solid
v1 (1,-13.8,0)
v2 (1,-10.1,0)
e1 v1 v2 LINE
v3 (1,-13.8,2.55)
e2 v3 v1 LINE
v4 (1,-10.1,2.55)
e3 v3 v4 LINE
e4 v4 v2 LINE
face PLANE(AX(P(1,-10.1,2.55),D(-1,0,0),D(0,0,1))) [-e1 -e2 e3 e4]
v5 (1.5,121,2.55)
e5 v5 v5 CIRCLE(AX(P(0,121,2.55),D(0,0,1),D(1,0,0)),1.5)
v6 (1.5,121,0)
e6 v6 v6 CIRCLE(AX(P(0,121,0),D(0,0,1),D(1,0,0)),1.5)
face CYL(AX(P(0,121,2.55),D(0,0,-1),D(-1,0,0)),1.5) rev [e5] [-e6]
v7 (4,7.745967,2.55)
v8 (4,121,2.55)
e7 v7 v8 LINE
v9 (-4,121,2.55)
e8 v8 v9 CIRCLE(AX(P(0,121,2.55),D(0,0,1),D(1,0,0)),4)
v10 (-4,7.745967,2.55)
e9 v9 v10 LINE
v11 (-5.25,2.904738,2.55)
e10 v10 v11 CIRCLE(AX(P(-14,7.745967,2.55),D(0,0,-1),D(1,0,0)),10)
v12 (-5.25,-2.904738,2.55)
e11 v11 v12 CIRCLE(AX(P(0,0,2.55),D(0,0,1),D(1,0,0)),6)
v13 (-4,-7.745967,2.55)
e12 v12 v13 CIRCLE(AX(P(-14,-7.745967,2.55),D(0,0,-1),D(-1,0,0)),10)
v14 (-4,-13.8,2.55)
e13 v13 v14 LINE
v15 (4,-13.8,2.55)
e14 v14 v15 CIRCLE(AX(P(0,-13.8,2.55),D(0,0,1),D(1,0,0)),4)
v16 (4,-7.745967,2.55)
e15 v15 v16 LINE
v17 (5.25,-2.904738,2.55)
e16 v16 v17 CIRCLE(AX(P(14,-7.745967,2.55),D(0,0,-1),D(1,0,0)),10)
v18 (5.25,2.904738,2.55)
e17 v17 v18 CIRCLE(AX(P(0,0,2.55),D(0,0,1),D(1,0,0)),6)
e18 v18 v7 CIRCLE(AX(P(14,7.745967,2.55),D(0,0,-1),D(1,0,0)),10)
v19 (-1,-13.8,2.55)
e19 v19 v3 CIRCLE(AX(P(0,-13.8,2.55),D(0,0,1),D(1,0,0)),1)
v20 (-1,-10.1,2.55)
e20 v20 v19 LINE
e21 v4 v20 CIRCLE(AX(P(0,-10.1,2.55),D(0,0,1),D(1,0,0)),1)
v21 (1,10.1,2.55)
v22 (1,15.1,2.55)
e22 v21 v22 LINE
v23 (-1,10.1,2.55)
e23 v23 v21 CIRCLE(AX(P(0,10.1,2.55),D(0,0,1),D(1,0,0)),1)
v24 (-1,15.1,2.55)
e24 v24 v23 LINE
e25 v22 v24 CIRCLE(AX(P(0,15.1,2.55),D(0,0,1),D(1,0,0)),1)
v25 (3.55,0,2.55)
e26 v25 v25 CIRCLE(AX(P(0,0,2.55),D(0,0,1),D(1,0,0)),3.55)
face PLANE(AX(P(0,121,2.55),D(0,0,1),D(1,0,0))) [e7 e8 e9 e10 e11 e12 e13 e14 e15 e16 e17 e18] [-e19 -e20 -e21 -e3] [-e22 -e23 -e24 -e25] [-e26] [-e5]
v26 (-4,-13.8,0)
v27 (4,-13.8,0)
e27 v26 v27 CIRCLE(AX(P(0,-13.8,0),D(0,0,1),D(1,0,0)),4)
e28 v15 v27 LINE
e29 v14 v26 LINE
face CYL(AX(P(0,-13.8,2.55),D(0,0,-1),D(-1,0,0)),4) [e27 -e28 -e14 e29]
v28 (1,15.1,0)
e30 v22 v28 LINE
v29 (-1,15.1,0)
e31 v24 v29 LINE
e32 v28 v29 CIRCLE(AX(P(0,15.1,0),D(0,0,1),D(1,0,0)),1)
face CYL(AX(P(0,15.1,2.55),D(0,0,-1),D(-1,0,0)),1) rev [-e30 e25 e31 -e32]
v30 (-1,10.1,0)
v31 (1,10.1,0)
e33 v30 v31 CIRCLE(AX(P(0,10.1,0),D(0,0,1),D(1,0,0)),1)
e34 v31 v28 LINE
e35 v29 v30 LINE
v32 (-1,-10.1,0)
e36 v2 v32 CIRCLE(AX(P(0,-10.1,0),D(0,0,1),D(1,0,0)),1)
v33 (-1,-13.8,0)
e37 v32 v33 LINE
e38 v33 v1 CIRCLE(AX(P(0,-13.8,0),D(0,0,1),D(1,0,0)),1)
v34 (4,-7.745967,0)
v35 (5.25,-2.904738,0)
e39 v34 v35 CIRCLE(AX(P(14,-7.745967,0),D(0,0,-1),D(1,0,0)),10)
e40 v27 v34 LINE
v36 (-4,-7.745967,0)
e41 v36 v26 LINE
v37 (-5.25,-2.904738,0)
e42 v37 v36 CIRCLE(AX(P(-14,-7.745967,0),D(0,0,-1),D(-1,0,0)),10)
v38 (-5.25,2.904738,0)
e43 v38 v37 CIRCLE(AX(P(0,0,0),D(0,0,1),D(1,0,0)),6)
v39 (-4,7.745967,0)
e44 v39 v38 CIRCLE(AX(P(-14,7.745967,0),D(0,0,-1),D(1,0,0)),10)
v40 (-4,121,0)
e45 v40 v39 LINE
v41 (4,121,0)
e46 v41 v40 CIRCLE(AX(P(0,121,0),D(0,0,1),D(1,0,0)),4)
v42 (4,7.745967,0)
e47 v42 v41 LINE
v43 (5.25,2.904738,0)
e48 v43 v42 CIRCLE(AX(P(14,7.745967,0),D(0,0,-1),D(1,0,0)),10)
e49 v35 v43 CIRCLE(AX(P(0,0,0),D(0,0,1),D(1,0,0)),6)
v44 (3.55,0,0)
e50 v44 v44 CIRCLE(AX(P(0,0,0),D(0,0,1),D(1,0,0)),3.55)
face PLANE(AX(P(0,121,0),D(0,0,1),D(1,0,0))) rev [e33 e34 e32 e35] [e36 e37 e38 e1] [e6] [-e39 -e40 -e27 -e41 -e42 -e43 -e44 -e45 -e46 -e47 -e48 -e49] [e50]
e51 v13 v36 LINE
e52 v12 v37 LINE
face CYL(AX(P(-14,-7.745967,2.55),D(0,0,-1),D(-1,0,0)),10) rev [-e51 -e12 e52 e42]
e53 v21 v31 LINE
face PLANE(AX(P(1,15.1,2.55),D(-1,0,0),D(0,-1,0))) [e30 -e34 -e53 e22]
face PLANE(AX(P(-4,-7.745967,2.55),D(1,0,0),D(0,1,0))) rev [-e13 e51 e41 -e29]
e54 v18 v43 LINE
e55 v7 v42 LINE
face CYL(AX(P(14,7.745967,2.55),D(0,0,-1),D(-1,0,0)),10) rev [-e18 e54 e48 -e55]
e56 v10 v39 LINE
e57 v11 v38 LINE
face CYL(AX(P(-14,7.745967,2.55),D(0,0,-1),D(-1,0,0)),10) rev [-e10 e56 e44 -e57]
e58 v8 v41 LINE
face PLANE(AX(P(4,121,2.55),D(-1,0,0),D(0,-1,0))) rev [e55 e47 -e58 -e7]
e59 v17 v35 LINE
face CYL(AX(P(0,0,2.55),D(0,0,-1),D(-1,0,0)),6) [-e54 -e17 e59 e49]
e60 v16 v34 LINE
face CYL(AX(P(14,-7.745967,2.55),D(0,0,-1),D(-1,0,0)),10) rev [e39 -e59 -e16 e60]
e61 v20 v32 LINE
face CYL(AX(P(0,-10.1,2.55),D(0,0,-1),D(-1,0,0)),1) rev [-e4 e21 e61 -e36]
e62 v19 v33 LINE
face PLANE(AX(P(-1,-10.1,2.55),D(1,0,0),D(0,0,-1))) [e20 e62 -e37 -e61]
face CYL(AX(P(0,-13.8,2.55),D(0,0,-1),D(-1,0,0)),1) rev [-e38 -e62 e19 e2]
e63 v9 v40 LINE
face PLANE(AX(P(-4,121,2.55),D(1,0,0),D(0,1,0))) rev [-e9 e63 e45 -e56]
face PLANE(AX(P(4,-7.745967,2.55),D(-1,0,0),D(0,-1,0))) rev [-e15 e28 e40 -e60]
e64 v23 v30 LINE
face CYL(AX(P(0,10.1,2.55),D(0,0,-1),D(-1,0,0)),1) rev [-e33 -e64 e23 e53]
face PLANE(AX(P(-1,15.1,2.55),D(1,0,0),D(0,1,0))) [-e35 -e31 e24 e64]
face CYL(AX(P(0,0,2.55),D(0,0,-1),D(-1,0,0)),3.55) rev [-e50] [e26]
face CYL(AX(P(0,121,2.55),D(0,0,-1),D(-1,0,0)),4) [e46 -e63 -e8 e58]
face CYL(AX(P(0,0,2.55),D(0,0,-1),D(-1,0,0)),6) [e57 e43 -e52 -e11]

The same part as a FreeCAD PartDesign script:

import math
import FreeCAD as App
import Part
import Sketcher

doc = App.newDocument("Part")
params = doc.addObject("Spreadsheet::Sheet", "Params")
for row, (alias, value) in enumerate([
    ("sketch1_diameter", "3 mm"),
    ("sketch1_radius", "10 mm"),
    ("sketch1_radius2", "6 mm"),
    ("sketch1_radius3", "4 mm"),
    ("sketch1_radius4", "1 mm"),
    ("pad1_length", "2.55 mm"),
], start=1):
    params.set(f"A{row}", alias)
    params.set(f"B{row}", "=" + value)
    params.setAlias(f"B{row}", alias)

body = doc.addObject("PartDesign::Body", "Body")

# Sketch on XY plane
sketch1 = body.newObject("Sketcher::SketchObject", "Sketch")
sketch1.AttachmentSupport = (doc.getObject("XY_Plane"), [""])
sketch1.MapMode = "FlatFace"
sketch1.addGeometry([
    Part.LineSegment(App.Vector(-4, 121, 0), App.Vector(-4, 7.7, 0)),  # 0
    Part.ArcOfCircle(Part.Circle(App.Vector(-14, 7.7, 0), App.Vector(0, 0, 1), 10), math.radians(-29), math.radians(0)),  # 1
    Part.ArcOfCircle(Part.Circle(App.Vector(0, 0, 0), App.Vector(0, 0, 1), 6), math.radians(151), math.radians(209)),  # 2
    Part.ArcOfCircle(Part.Circle(App.Vector(-14, -7.7, 0), App.Vector(0, 0, 1), 10), math.radians(0), math.radians(29)),  # 3
    Part.LineSegment(App.Vector(-4, -7.7, 0), App.Vector(-4, -13.8, 0)),  # 4
    Part.ArcOfCircle(Part.Circle(App.Vector(0, -13.8, 0), App.Vector(0, 0, 1), 4), math.radians(180), math.radians(360)),  # 5
    Part.LineSegment(App.Vector(4, -13.8, 0), App.Vector(4, -7.7, 0)),  # 6
    Part.ArcOfCircle(Part.Circle(App.Vector(14, -7.7, 0), App.Vector(0, 0, 1), 10), math.radians(151), math.radians(180)),  # 7
    Part.ArcOfCircle(Part.Circle(App.Vector(0, 0, 0), App.Vector(0, 0, 1), 6), math.radians(-29), math.radians(29)),  # 8
    Part.ArcOfCircle(Part.Circle(App.Vector(14, 7.7, 0), App.Vector(0, 0, 1), 10), math.radians(180), math.radians(209)),  # 9
    Part.LineSegment(App.Vector(4, 7.7, 0), App.Vector(4, 121, 0)),  # 10
    Part.ArcOfCircle(Part.Circle(App.Vector(0, 121, 0), App.Vector(0, 0, 1), 4), math.radians(0), math.radians(180)),  # 11
    Part.LineSegment(App.Vector(-1, -13.8, 0), App.Vector(-1, -10.1, 0)),  # 12
    Part.ArcOfCircle(Part.Circle(App.Vector(0, -10.1, 0), App.Vector(0, 0, 1), 1), math.radians(0), math.radians(180)),  # 13
    Part.LineSegment(App.Vector(1, -10.1, 0), App.Vector(1, -13.8, 0)),  # 14
    Part.ArcOfCircle(Part.Circle(App.Vector(0, -13.8, 0), App.Vector(0, 0, 1), 1), math.radians(180), math.radians(360)),  # 15
    Part.Circle(App.Vector(0, 0, 0), App.Vector(0, 0, 1), 3.5),  # 16
    Part.LineSegment(App.Vector(-1, 10.1, 0), App.Vector(-1, 15.1, 0)),  # 17
    Part.ArcOfCircle(Part.Circle(App.Vector(0, 15.1, 0), App.Vector(0, 0, 1), 1), math.radians(0), math.radians(180)),  # 18
    Part.LineSegment(App.Vector(1, 15.1, 0), App.Vector(1, 10.1, 0)),  # 19
    Part.ArcOfCircle(Part.Circle(App.Vector(0, 10.1, 0), App.Vector(0, 0, 1), 1), math.radians(180), math.radians(360)),  # 20
    Part.Circle(App.Vector(0, 121, 0), App.Vector(0, 0, 1), 1.5),  # 21
], False)
sketch1.addConstraint([
    Sketcher.Constraint("Tangent", 0, 2, 1, 2),
    Sketcher.Constraint("Tangent", 1, 1, 2, 1),
    Sketcher.Constraint("Tangent", 2, 2, 3, 2),
    Sketcher.Constraint("Tangent", 3, 1, 4, 1),
    Sketcher.Constraint("Tangent", 4, 2, 5, 1),
    Sketcher.Constraint("Tangent", 5, 2, 6, 1),
    Sketcher.Constraint("Tangent", 6, 2, 7, 2),
    Sketcher.Constraint("Tangent", 7, 1, 8, 1),
    Sketcher.Constraint("Tangent", 8, 2, 9, 2),
    Sketcher.Constraint("Tangent", 9, 1, 10, 1),
    Sketcher.Constraint("Tangent", 10, 2, 11, 1),
    Sketcher.Constraint("Tangent", 11, 2, 0, 1),
    Sketcher.Constraint("Tangent", 12, 2, 13, 2),
    Sketcher.Constraint("Tangent", 13, 1, 14, 1),
    Sketcher.Constraint("Tangent", 14, 2, 15, 2),
    Sketcher.Constraint("Tangent", 15, 1, 12, 1),
    Sketcher.Constraint("Tangent", 17, 2, 18, 2),
    Sketcher.Constraint("Tangent", 18, 1, 19, 1),
    Sketcher.Constraint("Tangent", 19, 2, 20, 2),
    Sketcher.Constraint("Tangent", 20, 1, 17, 1),
    Sketcher.Constraint("Vertical", 0),
    Sketcher.Constraint("Vertical", 4),
    Sketcher.Constraint("Vertical", 6),
    Sketcher.Constraint("Vertical", 10),
    Sketcher.Constraint("Vertical", 12),
    Sketcher.Constraint("Vertical", 14),
    Sketcher.Constraint("Vertical", 17),
    Sketcher.Constraint("Vertical", 19),
    Sketcher.Constraint("Coincident", 2, 3, -1, 1),
    Sketcher.Constraint("Coincident", 8, 3, -1, 1),
    Sketcher.Constraint("Coincident", 16, 3, -1, 1),
    Sketcher.Constraint("Coincident", 15, 3, 5, 3),
    Sketcher.Constraint("Coincident", 21, 3, 11, 3),
    Sketcher.Constraint("Equal", 1, 3),
    Sketcher.Constraint("Equal", 3, 7),
    Sketcher.Constraint("Equal", 2, 8),
    Sketcher.Constraint("Equal", 7, 9),
    Sketcher.Constraint("Equal", 5, 11),
    Sketcher.Constraint("Equal", 15, 18),
    Sketcher.Constraint("Symmetric", 13, 3, 20, 3, -1, 1),
    Sketcher.Constraint("PointOnObject", 5, 3, -2),
    Sketcher.Constraint("PointOnObject", 11, 3, -2),
    Sketcher.Constraint("Diameter", 21, 3.0),
    Sketcher.Constraint("Radius", 1, 10.0),
    Sketcher.Constraint("Radius", 2, 6.0),
    Sketcher.Constraint("Radius", 5, 4.0),
    Sketcher.Constraint("Radius", 13, 1.0),
    Sketcher.Constraint("Diameter", 16, 7.1),
    Sketcher.Constraint("DistanceY", 17, 1, 17, 2, 5.0),
    Sketcher.Constraint("DistanceY", 12, 1, 12, 2, 3.7),
    Sketcher.Constraint("DistanceY", -1, 1, 11, 3, 121.0),
    Sketcher.Constraint("DistanceY", 5, 3, -1, 1, 13.8),
])
sketch1.setExpression("Constraints[42]", "Params.sketch1_diameter")
sketch1.setExpression("Constraints[43]", "Params.sketch1_radius")
sketch1.setExpression("Constraints[44]", "Params.sketch1_radius2")
sketch1.setExpression("Constraints[45]", "Params.sketch1_radius3")
sketch1.setExpression("Constraints[46]", "Params.sketch1_radius4")
pad1 = body.newObject("PartDesign::Pad", "Pad")
pad1.Profile = sketch1
pad1.setExpression("Length", "Params.pad1_length")

doc.recompute()
